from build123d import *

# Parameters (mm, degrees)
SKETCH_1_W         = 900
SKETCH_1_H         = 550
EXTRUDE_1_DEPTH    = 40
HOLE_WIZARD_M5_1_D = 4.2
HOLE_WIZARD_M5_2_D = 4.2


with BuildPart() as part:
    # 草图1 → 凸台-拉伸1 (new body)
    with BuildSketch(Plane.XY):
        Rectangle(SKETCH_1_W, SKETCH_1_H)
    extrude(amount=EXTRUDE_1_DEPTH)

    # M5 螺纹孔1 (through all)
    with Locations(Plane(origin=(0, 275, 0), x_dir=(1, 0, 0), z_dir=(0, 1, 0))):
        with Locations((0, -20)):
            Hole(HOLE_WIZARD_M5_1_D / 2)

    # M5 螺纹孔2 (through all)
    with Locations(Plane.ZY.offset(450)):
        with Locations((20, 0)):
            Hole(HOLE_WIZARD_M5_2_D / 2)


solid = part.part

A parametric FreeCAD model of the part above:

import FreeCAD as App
import Part
import Sketcher

V = App.Vector
Q = App.Units.Quantity

doc = App.newDocument("Part")
params = doc.addObject("Spreadsheet::Sheet", "Params")
for row, (alias, value) in enumerate([
    ("sketch1_width", "900 mm"),
    ("sketch1_height", "550 mm"),
    ("pad1_length", "40 mm"),
    ("sketch2_diameter", "4.2 mm"),
    ("hole_diameter", "4.2 mm"),
    ("sketch3_diameter", "4.2 mm"),
    ("hole2_diameter", "4.2 mm"),
], start=1):
    params.set(f"A{row}", alias)
    params.set(f"B{row}", "=" + value)
    params.setAlias(f"B{row}", alias)

body = doc.addObject("PartDesign::Body", "Body")

# Sketch on XY plane
sketch1 = body.newObject("Sketcher::SketchObject", "Sketch")
sketch1.AttachmentSupport = (doc.getObject("XY_Plane"), [""])
sketch1.MapMode = "FlatFace"
sketch1.addGeometry([
    Part.LineSegment(V(-450, 275, 0), V(-450, -275, 0)),
    Part.LineSegment(V(-450, -275, 0), V(450, -275, 0)),
    Part.LineSegment(V(450, -275, 0), V(450, 275, 0)),
    Part.LineSegment(V(450, 275, 0), V(-450, 275, 0)),
], False)
sketch1.addConstraint([
    Sketcher.Constraint("Coincident", 0, 2, 1, 1),
    Sketcher.Constraint("Coincident", 1, 2, 2, 1),
    Sketcher.Constraint("Coincident", 2, 2, 3, 1),
    Sketcher.Constraint("Coincident", 3, 2, 0, 1),
    Sketcher.Constraint("Vertical", 0),
    Sketcher.Constraint("Horizontal", 1),
    Sketcher.Constraint("Vertical", 2),
    Sketcher.Constraint("Horizontal", 3),
    Sketcher.Constraint("Symmetric", 0, 2, 2, 2, -1, 1),
    Sketcher.Constraint("DistanceX", 1, 1, 1, 2, Q("900 mm")),
    Sketcher.Constraint("DistanceY", 0, 2, 0, 1, Q("550 mm")),
])
sketch1.setExpression("Constraints[9]", "Params.sketch1_width")
sketch1.setExpression("Constraints[10]", "Params.sketch1_height")
pad1 = body.newObject("PartDesign::Pad", "Pad")
pad1.Profile = sketch1
pad1.setExpression("Length", "Params.pad1_length")

# Sketch on XZ plane
sketch2 = body.newObject("Sketcher::SketchObject", "Sketch001")
sketch2.AttachmentSupport = (doc.getObject("XZ_Plane"), [""])
sketch2.MapMode = "FlatFace"
sketch2.AttachmentOffset = App.Placement(V(0, 0, -275), App.Rotation())
sketch2.addGeometry(Part.Circle(V(0, 20, 0), V(0, 0, 1), 2.1), False)
sketch2.addConstraint([
    Sketcher.Constraint("PointOnObject", 0, 3, -2),
    Sketcher.Constraint("Diameter", 0, Q("4.2 mm")),
    Sketcher.Constraint("DistanceY", -1, 1, 0, 3, Q("20 mm")),
])
sketch2.setExpression("Constraints[1]", "Params.sketch2_diameter")
doc.recompute()
hole = body.newObject("PartDesign::Hole", "Hole")
hole.Profile = sketch2
hole.ThreadType = "None"
hole.setExpression("Diameter", "Params.hole_diameter")
hole.DepthType = "ThroughAll"
hole.Reversed = True

# Sketch on YZ plane
sketch3 = body.newObject("Sketcher::SketchObject", "Sketch002")
sketch3.AttachmentSupport = (doc.getObject("YZ_Plane"), [""])
sketch3.MapMode = "FlatFace"
sketch3.AttachmentOffset = App.Placement(V(0, 0, -450), App.Rotation())
sketch3.addGeometry(Part.Circle(V(0, 20, 0), V(0, 0, 1), 2.1), False)
sketch3.addConstraint([
    Sketcher.Constraint("PointOnObject", 0, 3, -2),
    Sketcher.Constraint("Diameter", 0, Q("4.2 mm")),
    Sketcher.Constraint("DistanceY", -1, 1, 0, 3, Q("20 mm")),
])
sketch3.setExpression("Constraints[1]", "Params.sketch3_diameter")
doc.recompute()
hole2 = body.newObject("PartDesign::Hole", "Hole001")
hole2.Profile = sketch3
hole2.ThreadType = "None"
hole2.setExpression("Diameter", "Params.hole2_diameter")
hole2.DepthType = "ThroughAll"
hole2.Reversed = True

doc.recompute()
